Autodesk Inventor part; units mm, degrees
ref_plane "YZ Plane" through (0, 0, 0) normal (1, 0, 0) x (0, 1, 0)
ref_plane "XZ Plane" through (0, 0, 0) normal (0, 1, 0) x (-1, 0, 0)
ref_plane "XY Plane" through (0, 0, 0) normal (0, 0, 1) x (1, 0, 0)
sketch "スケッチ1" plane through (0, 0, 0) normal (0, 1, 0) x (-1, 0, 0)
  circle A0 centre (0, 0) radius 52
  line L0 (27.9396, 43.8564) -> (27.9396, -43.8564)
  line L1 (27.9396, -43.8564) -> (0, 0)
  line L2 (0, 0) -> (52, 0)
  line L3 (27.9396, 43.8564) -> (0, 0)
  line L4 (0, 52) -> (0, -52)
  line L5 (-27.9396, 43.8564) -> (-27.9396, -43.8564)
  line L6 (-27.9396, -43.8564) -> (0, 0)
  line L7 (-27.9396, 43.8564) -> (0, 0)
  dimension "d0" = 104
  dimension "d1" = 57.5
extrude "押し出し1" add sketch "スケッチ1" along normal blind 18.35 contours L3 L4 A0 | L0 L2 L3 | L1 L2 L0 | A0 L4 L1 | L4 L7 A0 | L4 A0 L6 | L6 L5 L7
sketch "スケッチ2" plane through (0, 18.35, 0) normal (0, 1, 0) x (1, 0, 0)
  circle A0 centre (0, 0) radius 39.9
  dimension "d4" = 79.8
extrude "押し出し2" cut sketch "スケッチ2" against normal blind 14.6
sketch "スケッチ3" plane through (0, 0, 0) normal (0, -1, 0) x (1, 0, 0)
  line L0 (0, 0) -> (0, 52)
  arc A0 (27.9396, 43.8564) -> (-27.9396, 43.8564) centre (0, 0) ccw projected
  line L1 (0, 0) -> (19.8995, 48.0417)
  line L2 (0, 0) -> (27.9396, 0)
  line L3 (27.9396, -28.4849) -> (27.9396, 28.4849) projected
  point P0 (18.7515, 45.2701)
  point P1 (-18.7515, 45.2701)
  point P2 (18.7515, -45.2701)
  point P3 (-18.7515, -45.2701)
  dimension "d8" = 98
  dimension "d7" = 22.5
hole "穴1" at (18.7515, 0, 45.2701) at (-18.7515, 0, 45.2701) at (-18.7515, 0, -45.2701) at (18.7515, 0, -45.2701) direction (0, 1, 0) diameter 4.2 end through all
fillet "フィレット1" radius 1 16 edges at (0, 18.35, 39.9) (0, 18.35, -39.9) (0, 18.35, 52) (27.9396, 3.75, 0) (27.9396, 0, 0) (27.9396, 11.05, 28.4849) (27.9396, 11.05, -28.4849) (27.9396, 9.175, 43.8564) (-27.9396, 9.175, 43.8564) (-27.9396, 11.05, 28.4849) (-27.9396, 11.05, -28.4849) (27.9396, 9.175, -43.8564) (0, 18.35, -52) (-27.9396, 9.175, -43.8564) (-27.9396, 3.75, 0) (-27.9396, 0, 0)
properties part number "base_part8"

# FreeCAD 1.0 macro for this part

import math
import FreeCAD as App
import Part
import Sketcher
from FreeCAD import Vector


def edges_at(feature, points):
    """Names of the edges that pass closest to the given points."""
    edges = feature.Shape.Edges
    near = lambda p: min(range(len(edges)), key=lambda i: edges[i].distToShape(Part.Vertex(*p))[0])
    return sorted({f"Edge{near(p) + 1}" for p in points})

doc = App.newDocument("Part")
body = doc.addObject("PartDesign::Body", "Body")

sketch1 = body.newObject("Sketcher::SketchObject", "Sketch")
sketch1.AttachmentSupport = (doc.getObject("XZ_Plane"), [""])
sketch1.MapMode = "FlatFace"
sketch1.addGeometry([
    Part.ArcOfCircle(Part.Circle(Vector(0, 0, 0), Vector(0, 0, 1), 52), math.radians(58), math.radians(122)),
    Part.LineSegment(Vector(28, 44, 0), Vector(28, -44, 0)),
    Part.ArcOfCircle(Part.Circle(Vector(0, 0, 0), Vector(0, 0, 1), 52), math.radians(-122), math.radians(-58)),
    Part.LineSegment(Vector(-28, -44, 0), Vector(-28, 44, 0)),
], False)
sketch1.addConstraint([
    Sketcher.Constraint("Coincident", 0, 1, 1, 1),
    Sketcher.Constraint("Coincident", 1, 2, 2, 2),
    Sketcher.Constraint("Coincident", 2, 1, 3, 1),
    Sketcher.Constraint("Coincident", 3, 2, 0, 2),
    Sketcher.Constraint("Vertical", 1),
    Sketcher.Constraint("Vertical", 3),
    Sketcher.Constraint("Coincident", 0, 3, -1, 1),
    Sketcher.Constraint("Coincident", 2, 3, -1, 1),
    Sketcher.Constraint("Equal", 0, 2),
    Sketcher.Constraint("Horizontal", 1, 2, 2, 1),
    Sketcher.Constraint("Radius", 0, 52.0),
    Sketcher.Constraint("DistanceY", 1, 2, 1, 1, 87.7128),
])
pad1 = body.newObject("PartDesign::Pad", "Pad")
pad1.Profile = sketch1
pad1.Length = 18.35
pad1.Reversed = True

sketch2 = body.newObject("Sketcher::SketchObject", "Sketch001")
sketch2.AttachmentSupport = (doc.getObject("XZ_Plane"), [""])
sketch2.MapMode = "FlatFace"
sketch2.AttachmentOffset = App.Placement(Vector(0, 0, -18.35), App.Rotation())
sketch2.addGeometry(Part.Circle(Vector(0, 0, 0), Vector(0, 0, 1), 40), False)
sketch2.addConstraint([
    Sketcher.Constraint("Coincident", 0, 3, -1, 1),
    Sketcher.Constraint("Diameter", 0, 79.8),
])
pocket1 = body.newObject("PartDesign::Pocket", "Pocket")
pocket1.Profile = sketch2
pocket1.Length = 14.6
pocket1.Reversed = True

sketch3 = body.newObject("Sketcher::SketchObject", "Sketch002")
sketch3.AttachmentSupport = (doc.getObject("XZ_Plane"), [""])
sketch3.MapMode = "FlatFace"
sketch3.addGeometry([
    Part.Circle(Vector(18.8, 45.3, 0), Vector(0, 0, 1), 2.1),
    Part.Circle(Vector(-18.8, 45.3, 0), Vector(0, 0, 1), 2.1),
    Part.Circle(Vector(-18.8, -45.3, 0), Vector(0, 0, 1), 2.1),
    Part.Circle(Vector(18.8, -45.3, 0), Vector(0, 0, 1), 2.1),
], False)
sketch3.addConstraint([
    Sketcher.Constraint("Equal", 0, 1),
    Sketcher.Constraint("Equal", 1, 2),
    Sketcher.Constraint("Equal", 2, 3),
    Sketcher.Constraint("Symmetric", 0, 3, 2, 3, -1, 1),
    Sketcher.Constraint("Symmetric", 1, 3, 3, 3, -1, 1),
    Sketcher.Constraint("Symmetric", 0, 3, 1, 3, -2),
    Sketcher.Constraint("Diameter", 0, 4.2),
    Sketcher.Constraint("DistanceY", -1, 1, 0, 3, 45.27),
    Sketcher.Constraint("DistanceX", 1, 3, 0, 3, 37.503),
])
doc.recompute()
hole = body.newObject("PartDesign::Hole", "Hole")
hole.Profile = sketch3
hole.ThreadType = "None"
hole.Diameter = 4.2
hole.DepthType = "ThroughAll"
doc.recompute()

fillet = body.newObject("PartDesign::Fillet", "Fillet")
fillet.Base = (hole, edges_at(hole, [
    (0, 18.35, 39.9),
    (0, 18.35, -39.9),
    (0, 18.35, 52),
    (27.94, 3.75, 0),
    (27.94, 0, 0),
    (27.94, 11.05, 28.485),
    (27.94, 11.05, -28.485),
    (27.94, 9.175, 43.856),
    (-27.94, 9.175, 43.856),
    (-27.94, 11.05, 28.485),
    (-27.94, 11.05, -28.485),
    (27.94, 9.175, -43.856),
    (0, 18.35, -52),
    (-27.94, 9.175, -43.856),
    (-27.94, 3.75, 0),
    (-27.94, 0, 0),
]))
fillet.Radius = 1

doc.recompute()
